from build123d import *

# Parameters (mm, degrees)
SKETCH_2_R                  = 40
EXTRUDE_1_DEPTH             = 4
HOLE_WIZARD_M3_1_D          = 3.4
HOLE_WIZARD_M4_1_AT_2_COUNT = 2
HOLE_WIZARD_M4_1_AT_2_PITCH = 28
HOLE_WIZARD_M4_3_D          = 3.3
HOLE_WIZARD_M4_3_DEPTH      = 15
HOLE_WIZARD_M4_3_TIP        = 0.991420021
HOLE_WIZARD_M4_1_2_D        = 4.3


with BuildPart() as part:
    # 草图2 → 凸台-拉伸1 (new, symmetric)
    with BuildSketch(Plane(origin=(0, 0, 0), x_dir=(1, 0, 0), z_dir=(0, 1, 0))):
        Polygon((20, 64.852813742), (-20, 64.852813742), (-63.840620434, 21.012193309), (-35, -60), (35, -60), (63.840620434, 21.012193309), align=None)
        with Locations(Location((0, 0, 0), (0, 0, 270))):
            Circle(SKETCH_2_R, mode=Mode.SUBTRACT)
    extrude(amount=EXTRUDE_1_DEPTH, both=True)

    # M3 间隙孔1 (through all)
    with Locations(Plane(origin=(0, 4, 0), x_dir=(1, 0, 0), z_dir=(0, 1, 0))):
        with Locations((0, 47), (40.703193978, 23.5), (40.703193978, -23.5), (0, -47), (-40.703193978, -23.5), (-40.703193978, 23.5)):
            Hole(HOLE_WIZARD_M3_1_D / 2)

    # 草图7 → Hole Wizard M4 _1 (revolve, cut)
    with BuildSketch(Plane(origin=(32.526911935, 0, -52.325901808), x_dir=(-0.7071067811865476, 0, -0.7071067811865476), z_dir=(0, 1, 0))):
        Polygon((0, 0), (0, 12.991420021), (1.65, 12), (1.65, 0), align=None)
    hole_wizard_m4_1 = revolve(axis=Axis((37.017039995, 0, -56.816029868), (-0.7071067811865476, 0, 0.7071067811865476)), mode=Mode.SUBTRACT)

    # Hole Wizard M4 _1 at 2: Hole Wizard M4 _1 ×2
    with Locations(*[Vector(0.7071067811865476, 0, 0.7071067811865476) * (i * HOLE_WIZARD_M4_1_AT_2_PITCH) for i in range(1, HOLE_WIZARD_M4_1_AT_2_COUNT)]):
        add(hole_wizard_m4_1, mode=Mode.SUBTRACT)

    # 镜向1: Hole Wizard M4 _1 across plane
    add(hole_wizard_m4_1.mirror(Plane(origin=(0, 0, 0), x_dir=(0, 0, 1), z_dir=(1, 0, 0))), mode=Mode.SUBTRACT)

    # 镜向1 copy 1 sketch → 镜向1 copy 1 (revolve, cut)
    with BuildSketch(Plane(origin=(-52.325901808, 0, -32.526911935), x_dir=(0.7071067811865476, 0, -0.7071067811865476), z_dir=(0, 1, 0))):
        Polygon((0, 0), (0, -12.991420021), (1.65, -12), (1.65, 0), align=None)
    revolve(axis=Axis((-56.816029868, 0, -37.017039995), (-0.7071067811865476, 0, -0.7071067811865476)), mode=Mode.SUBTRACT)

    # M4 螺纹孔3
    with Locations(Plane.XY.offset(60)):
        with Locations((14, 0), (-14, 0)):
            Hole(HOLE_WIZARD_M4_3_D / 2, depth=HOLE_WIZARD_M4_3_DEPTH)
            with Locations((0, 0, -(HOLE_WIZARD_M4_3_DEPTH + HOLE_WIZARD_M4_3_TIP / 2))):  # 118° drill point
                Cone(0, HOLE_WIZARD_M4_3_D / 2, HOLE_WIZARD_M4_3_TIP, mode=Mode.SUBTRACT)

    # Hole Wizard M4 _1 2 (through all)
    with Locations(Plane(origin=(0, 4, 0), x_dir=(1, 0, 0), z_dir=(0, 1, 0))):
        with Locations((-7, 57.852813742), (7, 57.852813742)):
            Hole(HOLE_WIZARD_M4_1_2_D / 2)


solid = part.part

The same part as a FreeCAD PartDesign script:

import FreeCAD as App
import Part
import Sketcher

V = App.Vector
Q = App.Units.Quantity

doc = App.newDocument("Part")
body = doc.addObject("PartDesign::Body", "Body")

# Sketch on XZ plane
sketch1 = doc.addObject("Sketcher::SketchObject", "Sketch")
body.addObject(sketch1)
sketch1.AttachmentSupport = (doc.XZ_Plane, [""])
sketch1.MapMode = "FlatFace"
sketch1.addGeometry([
    Part.LineSegment(V(20, -65, 0), V(-20, -65, 0)),  # 0
    Part.LineSegment(V(-20, -65, 0), V(-64, -21, 0)),  # 1
    Part.LineSegment(V(-64, -21, 0), V(-35, 60, 0)),  # 2
    Part.LineSegment(V(-35, 60, 0), V(35, 60, 0)),  # 3
    Part.LineSegment(V(35, 60, 0), V(64, -21, 0)),  # 4
    Part.LineSegment(V(64, -21, 0), V(20, -65, 0)),  # 5
    Part.Circle(V(0, 0, 0), V(0, 0, 1), 40),  # 6
], False)
sketch1.addConstraint([
    Sketcher.Constraint("Coincident", 0, 2, 1, 1),
    Sketcher.Constraint("Coincident", 1, 2, 2, 1),
    Sketcher.Constraint("Coincident", 2, 2, 3, 1),
    Sketcher.Constraint("Coincident", 3, 2, 4, 1),
    Sketcher.Constraint("Coincident", 4, 2, 5, 1),
    Sketcher.Constraint("Coincident", 5, 2, 0, 1),
    Sketcher.Constraint("Horizontal", 0),
    Sketcher.Constraint("Horizontal", 3),
    Sketcher.Constraint("Coincident", 6, 3, -1, 1),
    Sketcher.Constraint("Symmetric", 1, 2, 4, 2, -2),
    Sketcher.Constraint("Perpendicular", 1, 5),
    Sketcher.Constraint("Equal", 2, 4),
    Sketcher.Constraint("Equal", 1, 5),
    Sketcher.Constraint("Diameter", 6, Q("80 mm")),
    Sketcher.Constraint("DistanceX", 0, 2, 0, 1, Q("40 mm")),
    Sketcher.Constraint("DistanceX", 3, 1, 3, 2, Q("70 mm")),
    Sketcher.Constraint("Distance", 1, Q("62 mm")),
    Sketcher.Constraint("DistanceY", -1, 1, 2, 2, Q("60 mm")),
    Sketcher.Constraint("Distance", 2, Q("85.992772 mm")),
])
pad1 = doc.addObject("PartDesign::Pad", "Pad")
body.addObject(pad1)
pad1.Profile = sketch1
pad1.Length = 8
pad1.Midplane = True

# Sketch on XZ plane
sketch2 = doc.addObject("Sketcher::SketchObject", "Sketch001")
body.addObject(sketch2)
sketch2.AttachmentSupport = (doc.XZ_Plane, [""])
sketch2.MapMode = "FlatFace"
sketch2.AttachmentOffset = App.Placement(V(0, 0, -4), App.Rotation())
sketch2.addGeometry([
    Part.Circle(V(0, -47, 0), V(0, 0, 1), 1.7),  # 0
    Part.Circle(V(40.7, -23.5, 0), V(0, 0, 1), 1.7),  # 1
    Part.Circle(V(40.7, 23.5, 0), V(0, 0, 1), 1.7),  # 2
    Part.Circle(V(0, 47, 0), V(0, 0, 1), 1.7),  # 3
    Part.Circle(V(-40.7, 23.5, 0), V(0, 0, 1), 1.7),  # 4
    Part.Circle(V(-40.7, -23.5, 0), V(0, 0, 1), 1.7),  # 5
], False)
sketch2.addConstraint([
    Sketcher.Constraint("Equal", 0, 1),
    Sketcher.Constraint("Equal", 1, 2),
    Sketcher.Constraint("Equal", 2, 3),
    Sketcher.Constraint("Equal", 3, 4),
    Sketcher.Constraint("Equal", 4, 5),
    Sketcher.Constraint("Symmetric", 0, 3, 3, 3, -1, 1),
    Sketcher.Constraint("Symmetric", 1, 3, 4, 3, -1, 1),
    Sketcher.Constraint("Symmetric", 2, 3, 5, 3, -1, 1),
    Sketcher.Constraint("Symmetric", 2, 3, 4, 3, -2),
    Sketcher.Constraint("PointOnObject", 0, 3, -2),
    Sketcher.Constraint("Diameter", 0, Q("3.4 mm")),
    Sketcher.Constraint("DistanceY", 0, 3, -1, 1, Q("47 mm")),
    Sketcher.Constraint("DistanceY", 1, 3, 2, 3, Q("47 mm")),
    Sketcher.Constraint("DistanceX", -1, 1, 1, 3, Q("40.703194 mm")),
])
doc.recompute()
hole = doc.addObject("PartDesign::Hole", "Hole")
body.addObject(hole)
hole.Profile = sketch2
hole.ThreadType = "None"
hole.Diameter = 3.4
hole.DepthType = "ThroughAll"
hole.Reversed = True

# Sketch on XZ plane
sketch3 = doc.addObject("Sketcher::SketchObject", "Sketch002")
body.addObject(sketch3)
sketch3.AttachmentSupport = (doc.XZ_Plane, [""])
sketch3.MapMode = "FlatFace"
sketch3.addGeometry([
    Part.LineSegment(V(23.3, -43.1, 0), V(32.5, -52.3, 0)),
    Part.LineSegment(V(32.5, -52.3, 0), V(31.4, -53.5, 0)),
    Part.LineSegment(V(31.4, -53.5, 0), V(22.9, -45, 0)),
    Part.LineSegment(V(22.9, -45, 0), V(23.3, -43.1, 0)),
], False)
sketch3.addGeometry(Part.LineSegment(V(32.5, -52.3, 0), V(23.3, -43.1, 0)), True)  # axis
sketch3.addConstraint([
    Sketcher.Constraint("Coincident", 0, 2, 1, 1),
    Sketcher.Constraint("Coincident", 1, 2, 2, 1),
    Sketcher.Constraint("Coincident", 2, 2, 3, 1),
    Sketcher.Constraint("Coincident", 3, 2, 0, 1),
    Sketcher.Constraint("Coincident", 4, 1, 0, 2),
    Sketcher.Constraint("Coincident", 4, 2, 3, 2),
    Sketcher.Constraint("Perpendicular", 0, 1),
    Sketcher.Constraint("Perpendicular", 1, 2),
    Sketcher.Constraint("Angle", 0, Q("-45 deg")),
    Sketcher.Constraint("Angle", 3, Q("76 deg")),
    Sketcher.Constraint("Distance", 2, Q("12 mm")),
    Sketcher.Constraint("Distance", 1, Q("1.65 mm")),
    Sketcher.Constraint("DistanceY", 0, 2, -1, 1, Q("52.325902 mm")),
    Sketcher.Constraint("DistanceX", -1, 1, 0, 2, Q("32.526912 mm")),
])
groove = doc.addObject("PartDesign::Groove", "Groove")
body.addObject(groove)
groove.Profile = sketch3
groove.ReferenceAxis = (sketch3, ["Axis0"])
groove.Angle = 360
doc.recompute()

datumline = doc.addObject("PartDesign::Line", "DatumLine")
body.addObject(datumline)
datumline.Placement = App.Placement(V(0, 0, 0), App.Rotation(V(0, 0, 1), V(0.707106781, 0, 0.707106781)))
linearpattern = doc.addObject("PartDesign::LinearPattern", "LinearPattern")
body.addObject(linearpattern)
linearpattern.Originals = [groove]
linearpattern.Direction = (datumline, [""])
linearpattern.Mode = "offset"
linearpattern.Offset = 28
linearpattern.Occurrences = 2
body.Tip = linearpattern
doc.recompute()

mirrored = doc.addObject("PartDesign::Mirrored", "Mirrored")
body.addObject(mirrored)
mirrored.Originals = [groove]
mirrored.MirrorPlane = (doc.YZ_Plane, [""])
body.Tip = mirrored

# Sketch on XZ plane
sketch4 = doc.addObject("Sketcher::SketchObject", "Sketch003")
body.addObject(sketch4)
sketch4.AttachmentSupport = (doc.XZ_Plane, [""])
sketch4.MapMode = "FlatFace"
sketch4.addGeometry([
    Part.LineSegment(V(-52.3, -32.5, 0), V(-43.1, -23.3, 0)),
    Part.LineSegment(V(-43.1, -23.3, 0), V(-42.7, -25.2, 0)),
    Part.LineSegment(V(-42.7, -25.2, 0), V(-51.2, -33.7, 0)),
    Part.LineSegment(V(-51.2, -33.7, 0), V(-52.3, -32.5, 0)),
], False)
sketch4.addGeometry(Part.LineSegment(V(-43.1, -23.3, 0), V(-52.3, -32.5, 0)), True)  # axis
sketch4.addConstraint([
    Sketcher.Constraint("Coincident", 0, 2, 1, 1),
    Sketcher.Constraint("Coincident", 1, 2, 2, 1),
    Sketcher.Constraint("Coincident", 2, 2, 3, 1),
    Sketcher.Constraint("Coincident", 3, 2, 0, 1),
    Sketcher.Constraint("Coincident", 4, 1, 0, 2),
    Sketcher.Constraint("Coincident", 4, 2, 3, 2),
    Sketcher.Constraint("Parallel", 0, 2),
    Sketcher.Constraint("Perpendicular", 2, 3),
    Sketcher.Constraint("Angle", 0, Q("45 deg")),
    Sketcher.Constraint("Angle", 1, Q("-76 deg")),
    Sketcher.Constraint("Distance", 2, Q("12 mm")),
    Sketcher.Constraint("Distance", 3, Q("1.65 mm")),
    Sketcher.Constraint("DistanceX", 3, 2, -1, 1, Q("52.325902 mm")),
    Sketcher.Constraint("DistanceY", 0, 2, -1, 1, Q("23.340591 mm")),
])
groove2 = doc.addObject("PartDesign::Groove", "Groove001")
body.addObject(groove2)
groove2.Profile = sketch4
groove2.ReferenceAxis = (sketch4, ["Axis0"])
groove2.Angle = 360

# Sketch on XY plane
sketch5 = doc.addObject("Sketcher::SketchObject", "Sketch004")
body.addObject(sketch5)
sketch5.AttachmentSupport = (doc.XY_Plane, [""])
sketch5.MapMode = "FlatFace"
sketch5.AttachmentOffset = App.Placement(V(0, 0, 60), App.Rotation())
sketch5.addGeometry([
    Part.Circle(V(14, 0, 0), V(0, 0, 1), 1.6),
    Part.Circle(V(-14, 0, 0), V(0, 0, 1), 1.6),
], False)
sketch5.addConstraint([
    Sketcher.Constraint("Equal", 0, 1),
    Sketcher.Constraint("Symmetric", 0, 3, 1, 3, -1, 1),
    Sketcher.Constraint("PointOnObject", 0, 3, -1),
    Sketcher.Constraint("Diameter", 0, Q("3.3 mm")),
    Sketcher.Constraint("DistanceX", -1, 1, 0, 3, Q("14 mm")),
])
doc.recompute()
hole2 = doc.addObject("PartDesign::Hole", "Hole001")
body.addObject(hole2)
hole2.Profile = sketch5
hole2.ThreadType = "None"
hole2.Diameter = 3.3
hole2.DepthType = "Dimension"
hole2.Depth = 15
hole2.DrillPoint = "Angled"
hole2.DrillPointAngle = 118

# Sketch on XZ plane
sketch6 = doc.addObject("Sketcher::SketchObject", "Sketch005")
body.addObject(sketch6)
sketch6.AttachmentSupport = (doc.XZ_Plane, [""])
sketch6.MapMode = "FlatFace"
sketch6.AttachmentOffset = App.Placement(V(0, 0, -4), App.Rotation())
sketch6.addGeometry([
    Part.Circle(V(-7, -57.9, 0), V(0, 0, 1), 2.1),
    Part.Circle(V(7, -57.9, 0), V(0, 0, 1), 2.1),
], False)
sketch6.addConstraint([
    Sketcher.Constraint("Equal", 0, 1),
    Sketcher.Constraint("Symmetric", 0, 3, 1, 3, -2),
    Sketcher.Constraint("Diameter", 0, Q("4.3 mm")),
    Sketcher.Constraint("DistanceX", 0, 3, -1, 1, Q("7 mm")),
    Sketcher.Constraint("DistanceY", 0, 3, -1, 1, Q("57.852814 mm")),
])
doc.recompute()
hole3 = doc.addObject("PartDesign::Hole", "Hole002")
body.addObject(hole3)
hole3.Profile = sketch6
hole3.ThreadType = "None"
hole3.Diameter = 4.3
hole3.DepthType = "ThroughAll"
hole3.Reversed = True

doc.recompute()
